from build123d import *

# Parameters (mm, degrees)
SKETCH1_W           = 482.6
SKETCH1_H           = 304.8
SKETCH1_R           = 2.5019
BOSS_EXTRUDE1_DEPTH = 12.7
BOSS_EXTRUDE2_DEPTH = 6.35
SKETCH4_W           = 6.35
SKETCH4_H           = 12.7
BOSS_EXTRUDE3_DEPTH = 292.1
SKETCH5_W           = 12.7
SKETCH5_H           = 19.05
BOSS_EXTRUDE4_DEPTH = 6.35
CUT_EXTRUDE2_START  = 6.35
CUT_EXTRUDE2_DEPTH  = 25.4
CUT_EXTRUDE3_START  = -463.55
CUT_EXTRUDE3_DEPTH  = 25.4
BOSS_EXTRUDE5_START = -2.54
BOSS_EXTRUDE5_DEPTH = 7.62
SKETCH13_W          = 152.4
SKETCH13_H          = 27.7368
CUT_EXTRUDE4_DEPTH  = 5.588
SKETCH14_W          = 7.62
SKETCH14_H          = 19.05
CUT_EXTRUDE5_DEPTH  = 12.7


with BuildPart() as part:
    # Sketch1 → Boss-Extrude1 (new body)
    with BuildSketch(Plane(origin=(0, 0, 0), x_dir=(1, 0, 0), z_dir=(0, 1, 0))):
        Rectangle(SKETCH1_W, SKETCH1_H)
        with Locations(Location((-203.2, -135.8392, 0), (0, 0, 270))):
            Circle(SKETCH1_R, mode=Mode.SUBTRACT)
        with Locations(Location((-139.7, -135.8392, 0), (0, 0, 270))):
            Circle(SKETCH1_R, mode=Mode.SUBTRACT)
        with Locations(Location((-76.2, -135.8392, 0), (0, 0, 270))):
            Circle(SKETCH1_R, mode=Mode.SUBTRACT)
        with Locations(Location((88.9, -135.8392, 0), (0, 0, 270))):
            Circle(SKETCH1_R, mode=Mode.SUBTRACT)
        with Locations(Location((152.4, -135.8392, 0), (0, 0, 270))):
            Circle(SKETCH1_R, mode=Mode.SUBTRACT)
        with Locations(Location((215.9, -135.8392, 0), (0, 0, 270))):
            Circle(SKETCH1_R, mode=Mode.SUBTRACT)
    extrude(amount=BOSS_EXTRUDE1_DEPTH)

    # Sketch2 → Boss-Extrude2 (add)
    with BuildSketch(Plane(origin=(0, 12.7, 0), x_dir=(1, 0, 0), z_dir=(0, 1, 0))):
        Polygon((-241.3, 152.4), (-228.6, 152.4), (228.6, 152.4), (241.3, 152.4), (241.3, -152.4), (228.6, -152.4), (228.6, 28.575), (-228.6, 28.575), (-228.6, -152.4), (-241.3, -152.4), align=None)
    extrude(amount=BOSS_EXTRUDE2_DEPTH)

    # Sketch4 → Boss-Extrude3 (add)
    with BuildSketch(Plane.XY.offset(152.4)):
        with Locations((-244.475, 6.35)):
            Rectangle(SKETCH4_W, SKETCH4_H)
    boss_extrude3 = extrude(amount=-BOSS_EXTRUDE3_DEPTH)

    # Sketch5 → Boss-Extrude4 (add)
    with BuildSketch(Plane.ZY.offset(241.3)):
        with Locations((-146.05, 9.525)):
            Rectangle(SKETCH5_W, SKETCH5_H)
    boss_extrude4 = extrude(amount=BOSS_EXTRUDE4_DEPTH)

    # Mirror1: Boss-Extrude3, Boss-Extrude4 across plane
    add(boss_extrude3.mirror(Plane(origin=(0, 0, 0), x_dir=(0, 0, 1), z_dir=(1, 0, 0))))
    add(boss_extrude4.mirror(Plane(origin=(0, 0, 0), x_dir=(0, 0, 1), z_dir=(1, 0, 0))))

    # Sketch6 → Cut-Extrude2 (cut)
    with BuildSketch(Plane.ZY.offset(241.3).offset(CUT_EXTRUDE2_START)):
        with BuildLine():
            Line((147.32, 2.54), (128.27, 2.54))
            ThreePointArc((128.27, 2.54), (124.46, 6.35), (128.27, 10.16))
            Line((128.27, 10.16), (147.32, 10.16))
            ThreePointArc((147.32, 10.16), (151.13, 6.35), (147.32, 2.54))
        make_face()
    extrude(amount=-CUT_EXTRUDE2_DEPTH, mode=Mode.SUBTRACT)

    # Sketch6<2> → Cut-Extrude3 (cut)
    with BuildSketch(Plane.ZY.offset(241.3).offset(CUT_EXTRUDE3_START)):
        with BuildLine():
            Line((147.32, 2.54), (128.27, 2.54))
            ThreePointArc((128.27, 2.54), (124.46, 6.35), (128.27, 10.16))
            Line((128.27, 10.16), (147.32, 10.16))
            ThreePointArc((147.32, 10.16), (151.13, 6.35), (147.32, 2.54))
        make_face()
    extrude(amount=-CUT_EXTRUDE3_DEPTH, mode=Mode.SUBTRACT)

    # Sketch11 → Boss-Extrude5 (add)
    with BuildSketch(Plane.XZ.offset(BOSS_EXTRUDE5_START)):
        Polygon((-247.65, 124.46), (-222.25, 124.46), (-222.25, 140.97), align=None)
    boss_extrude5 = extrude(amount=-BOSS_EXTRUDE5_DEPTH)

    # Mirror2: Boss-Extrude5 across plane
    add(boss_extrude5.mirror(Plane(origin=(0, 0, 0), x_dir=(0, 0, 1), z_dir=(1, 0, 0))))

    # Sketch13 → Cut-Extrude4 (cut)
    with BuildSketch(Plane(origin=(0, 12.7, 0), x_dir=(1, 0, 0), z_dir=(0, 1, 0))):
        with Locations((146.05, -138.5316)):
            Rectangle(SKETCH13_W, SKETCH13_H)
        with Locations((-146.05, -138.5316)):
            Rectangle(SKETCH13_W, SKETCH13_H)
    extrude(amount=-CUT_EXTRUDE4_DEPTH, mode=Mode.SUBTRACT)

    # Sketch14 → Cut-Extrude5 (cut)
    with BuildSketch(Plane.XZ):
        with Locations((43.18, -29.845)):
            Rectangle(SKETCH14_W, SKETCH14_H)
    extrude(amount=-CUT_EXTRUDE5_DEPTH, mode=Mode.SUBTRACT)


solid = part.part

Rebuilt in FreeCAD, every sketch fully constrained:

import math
import FreeCAD as App
import Part
import Sketcher

V = App.Vector
Q = App.Units.Quantity

doc = App.newDocument("Part")
body = doc.addObject("PartDesign::Body", "Body")

# Sketch on XZ plane
sketch1 = doc.addObject("Sketcher::SketchObject", "Sketch")
body.addObject(sketch1)
sketch1.AttachmentSupport = (doc.XZ_Plane, [""])
sketch1.MapMode = "FlatFace"
sketch1.addGeometry(Part.LineSegment(V(-241.3, -152.4, 0), V(-241.3, 152.4, 0)), False)
sketch1.addGeometry(Part.LineSegment(V(-241.3, 152.4, 0), V(241.3, 152.4, 0)), False)
sketch1.addGeometry(Part.LineSegment(V(241.3, 152.4, 0), V(241.3, -152.4, 0)), False)
sketch1.addGeometry(Part.LineSegment(V(241.3, -152.4, 0), V(-241.3, -152.4, 0)), False)
sketch1.addGeometry(Part.Circle(V(-203.2, 135.8, 0), V(0, 0, 1), 2.5), False)
sketch1.addGeometry(Part.Circle(V(-139.7, 135.8, 0), V(0, 0, 1), 2.5), False)
sketch1.addGeometry(Part.Circle(V(-76.2, 135.8, 0), V(0, 0, 1), 2.5), False)
sketch1.addGeometry(Part.Circle(V(88.9, 135.8, 0), V(0, 0, 1), 2.5), False)
sketch1.addGeometry(Part.Circle(V(152.4, 135.8, 0), V(0, 0, 1), 2.5), False)
sketch1.addGeometry(Part.Circle(V(215.9, 135.8, 0), V(0, 0, 1), 2.5), False)
sketch1.addConstraint(Sketcher.Constraint("Coincident", 0, 2, 1, 1))
sketch1.addConstraint(Sketcher.Constraint("Coincident", 1, 2, 2, 1))
sketch1.addConstraint(Sketcher.Constraint("Coincident", 2, 2, 3, 1))
sketch1.addConstraint(Sketcher.Constraint("Coincident", 3, 2, 0, 1))
sketch1.addConstraint(Sketcher.Constraint("Vertical", 0))
sketch1.addConstraint(Sketcher.Constraint("Horizontal", 1))
sketch1.addConstraint(Sketcher.Constraint("Vertical", 2))
sketch1.addConstraint(Sketcher.Constraint("Horizontal", 3))
sketch1.addConstraint(Sketcher.Constraint("Equal", 4, 5))
sketch1.addConstraint(Sketcher.Constraint("Equal", 5, 6))
sketch1.addConstraint(Sketcher.Constraint("Equal", 6, 7))
sketch1.addConstraint(Sketcher.Constraint("Equal", 7, 8))
sketch1.addConstraint(Sketcher.Constraint("Equal", 8, 9))
sketch1.addConstraint(Sketcher.Constraint("Symmetric", 0, 2, 2, 2, -1, 1))
sketch1.addConstraint(Sketcher.Constraint("Horizontal", 4, 3, 5, 3))
sketch1.addConstraint(Sketcher.Constraint("Horizontal", 5, 3, 6, 3))
sketch1.addConstraint(Sketcher.Constraint("Horizontal", 6, 3, 7, 3))
sketch1.addConstraint(Sketcher.Constraint("Horizontal", 7, 3, 8, 3))
sketch1.addConstraint(Sketcher.Constraint("Horizontal", 8, 3, 9, 3))
sketch1.addConstraint(Sketcher.Constraint("DistanceX", 1, 1, 1, 2, Q("19 in")))
sketch1.addConstraint(Sketcher.Constraint("DistanceY", 0, 1, 0, 2, Q("12 in")))
sketch1.addConstraint(Sketcher.Constraint("Diameter", 4, Q("0.197 in")))
sketch1.addConstraint(Sketcher.Constraint("DistanceX", 4, 3, -1, 1, Q("8 in")))
sketch1.addConstraint(Sketcher.Constraint("DistanceX", 6, 3, -1, 1, Q("3 in")))
sketch1.addConstraint(Sketcher.Constraint("DistanceX", -1, 1, 8, 3, Q("6 in")))
sketch1.addConstraint(Sketcher.Constraint("DistanceX", 5, 3, 7, 3, Q("9 in")))
sketch1.addConstraint(Sketcher.Constraint("DistanceX", 7, 3, 9, 3, Q("5 in")))
sketch1.addConstraint(Sketcher.Constraint("DistanceX", 0, 2, 5, 3, Q("4 in")))
sketch1.addConstraint(Sketcher.Constraint("DistanceY", -1, 1, 4, 3, Q("5.348 in")))
pad1 = doc.addObject("PartDesign::Pad", "Pad")
body.addObject(pad1)
pad1.Profile = sketch1
pad1.Length = Q("0.5 in")
pad1.Reversed = True

# Sketch on XZ plane
sketch2 = doc.addObject("Sketcher::SketchObject", "Sketch001")
body.addObject(sketch2)
sketch2.AttachmentSupport = (doc.XZ_Plane, [""])
sketch2.MapMode = "FlatFace"
sketch2.AttachmentOffset = App.Placement(V(0, 0, -0.5 * 25.4), App.Rotation())
sketch2.addGeometry(Part.LineSegment(V(241, -152, 0), V(-241, -152, 0)), False)
sketch2.addGeometry(Part.LineSegment(V(-241, -152, 0), V(-241, 152, 0)), False)
sketch2.addGeometry(Part.LineSegment(V(-241, 152, 0), V(-229, 152, 0)), False)
sketch2.addGeometry(Part.LineSegment(V(-229, 152, 0), V(-229, -29, 0)), False)
sketch2.addGeometry(Part.LineSegment(V(-229, -29, 0), V(229, -29, 0)), False)
sketch2.addGeometry(Part.LineSegment(V(229, -29, 0), V(229, 152, 0)), False)
sketch2.addGeometry(Part.LineSegment(V(229, 152, 0), V(241, 152, 0)), False)
sketch2.addGeometry(Part.LineSegment(V(241, 152, 0), V(241, -152, 0)), False)
sketch2.addConstraint(Sketcher.Constraint("Coincident", 0, 2, 1, 1))
sketch2.addConstraint(Sketcher.Constraint("Coincident", 1, 2, 2, 1))
sketch2.addConstraint(Sketcher.Constraint("Coincident", 2, 2, 3, 1))
sketch2.addConstraint(Sketcher.Constraint("Coincident", 3, 2, 4, 1))
sketch2.addConstraint(Sketcher.Constraint("Coincident", 4, 2, 5, 1))
sketch2.addConstraint(Sketcher.Constraint("Coincident", 5, 2, 6, 1))
sketch2.addConstraint(Sketcher.Constraint("Coincident", 6, 2, 7, 1))
sketch2.addConstraint(Sketcher.Constraint("Coincident", 7, 2, 0, 1))
sketch2.addConstraint(Sketcher.Constraint("Horizontal", 0))
sketch2.addConstraint(Sketcher.Constraint("Vertical", 1))
sketch2.addConstraint(Sketcher.Constraint("Horizontal", 2))
sketch2.addConstraint(Sketcher.Constraint("Vertical", 3))
sketch2.addConstraint(Sketcher.Constraint("Horizontal", 4))
sketch2.addConstraint(Sketcher.Constraint("Vertical", 5))
sketch2.addConstraint(Sketcher.Constraint("Horizontal", 6))
sketch2.addConstraint(Sketcher.Constraint("Vertical", 7))
sketch2.addConstraint(Sketcher.Constraint("Symmetric", 0, 2, 6, 2, -1, 1))
sketch2.addConstraint(Sketcher.Constraint("Symmetric", 2, 2, 5, 2, -2))
sketch2.addConstraint(Sketcher.Constraint("DistanceX", 0, 2, 0, 1, Q("19 in")))
sketch2.addConstraint(Sketcher.Constraint("DistanceX", 4, 1, 4, 2, Q("18 in")))
sketch2.addConstraint(Sketcher.Constraint("DistanceY", 1, 1, 1, 2, Q("12 in")))
sketch2.addConstraint(Sketcher.Constraint("DistanceY", 3, 2, 3, 1, Q("7.125 in")))
pad2 = doc.addObject("PartDesign::Pad", "Pad001")
body.addObject(pad2)
pad2.Profile = sketch2
pad2.Length = Q("0.25 in")
pad2.Reversed = True

# Sketch on XY plane
sketch3 = doc.addObject("Sketcher::SketchObject", "Sketch002")
body.addObject(sketch3)
sketch3.AttachmentSupport = (doc.XY_Plane, [""])
sketch3.MapMode = "FlatFace"
sketch3.AttachmentOffset = App.Placement(V(0, 0, 6 * 25.4), App.Rotation())
sketch3.addGeometry(Part.LineSegment(V(-248, 13, 0), V(-248, 0, 0)), False)
sketch3.addGeometry(Part.LineSegment(V(-248, 0, 0), V(-241, 0, 0)), False)
sketch3.addGeometry(Part.LineSegment(V(-241, 0, 0), V(-241, 13, 0)), False)
sketch3.addGeometry(Part.LineSegment(V(-241, 13, 0), V(-248, 13, 0)), False)
sketch3.addConstraint(Sketcher.Constraint("Coincident", 0, 2, 1, 1))
sketch3.addConstraint(Sketcher.Constraint("Coincident", 1, 2, 2, 1))
sketch3.addConstraint(Sketcher.Constraint("Coincident", 2, 2, 3, 1))
sketch3.addConstraint(Sketcher.Constraint("Coincident", 3, 2, 0, 1))
sketch3.addConstraint(Sketcher.Constraint("Vertical", 0))
sketch3.addConstraint(Sketcher.Constraint("Horizontal", 1))
sketch3.addConstraint(Sketcher.Constraint("Vertical", 2))
sketch3.addConstraint(Sketcher.Constraint("Horizontal", 3))
sketch3.addConstraint(Sketcher.Constraint("PointOnObject", 0, 2, -1))
sketch3.addConstraint(Sketcher.Constraint("DistanceY", 0, 2, 0, 1, Q("0.5 in")))
sketch3.addConstraint(Sketcher.Constraint("DistanceX", 1, 1, 1, 2, Q("0.25 in")))
sketch3.addConstraint(Sketcher.Constraint("DistanceX", 1, 2, -1, 1, Q("9.5 in")))
pad3 = doc.addObject("PartDesign::Pad", "Pad002")
body.addObject(pad3)
pad3.Profile = sketch3
pad3.Length = Q("11.5 in")
pad3.Reversed = True

# Sketch on YZ plane
sketch4 = doc.addObject("Sketcher::SketchObject", "Sketch003")
body.addObject(sketch4)
sketch4.AttachmentSupport = (doc.YZ_Plane, [""])
sketch4.MapMode = "FlatFace"
sketch4.AttachmentOffset = App.Placement(V(0, 0, -9.5 * 25.4), App.Rotation())
sketch4.addGeometry(Part.LineSegment(V(19, -152, 0), V(0, -152, 0)), False)
sketch4.addGeometry(Part.LineSegment(V(0, -152, 0), V(0, -140, 0)), False)
sketch4.addGeometry(Part.LineSegment(V(0, -140, 0), V(19, -140, 0)), False)
sketch4.addGeometry(Part.LineSegment(V(19, -140, 0), V(19, -152, 0)), False)
sketch4.addConstraint(Sketcher.Constraint("Coincident", 0, 2, 1, 1))
sketch4.addConstraint(Sketcher.Constraint("Coincident", 1, 2, 2, 1))
sketch4.addConstraint(Sketcher.Constraint("Coincident", 2, 2, 3, 1))
sketch4.addConstraint(Sketcher.Constraint("Coincident", 3, 2, 0, 1))
sketch4.addConstraint(Sketcher.Constraint("Horizontal", 0))
sketch4.addConstraint(Sketcher.Constraint("Vertical", 1))
sketch4.addConstraint(Sketcher.Constraint("Horizontal", 2))
sketch4.addConstraint(Sketcher.Constraint("Vertical", 3))
sketch4.addConstraint(Sketcher.Constraint("PointOnObject", 0, 2, -2))
sketch4.addConstraint(Sketcher.Constraint("DistanceY", 1, 1, 1, 2, Q("0.5 in")))
sketch4.addConstraint(Sketcher.Constraint("DistanceY", 0, 2, -1, 1, Q("6 in")))
sketch4.addConstraint(Sketcher.Constraint("DistanceX", 0, 2, 0, 1, Q("0.75 in")))
pad4 = doc.addObject("PartDesign::Pad", "Pad003")
body.addObject(pad4)
pad4.Profile = sketch4
pad4.Length = Q("0.25 in")
pad4.Reversed = True
doc.recompute()

mirrored = doc.addObject("PartDesign::Mirrored", "Mirrored")
body.addObject(mirrored)
mirrored.Originals = [pad3, pad4]
mirrored.MirrorPlane = (doc.YZ_Plane, [""])
body.Tip = mirrored

# Sketch on YZ plane
sketch5 = doc.addObject("Sketcher::SketchObject", "Sketch004")
body.addObject(sketch5)
sketch5.AttachmentSupport = (doc.YZ_Plane, [""])
sketch5.MapMode = "FlatFace"
sketch5.AttachmentOffset = App.Placement(V(0, 0, -9.75 * 25.4), App.Rotation())
sketch5.addGeometry(Part.LineSegment(V(2.5, 128.3, 0), V(2.5, 147.3, 0)), False)
sketch5.addGeometry(Part.ArcOfCircle(Part.Circle(V(6.3, 147.3, 0), V(0, 0, 1), 3.8), math.radians(0), math.radians(180)), False)
sketch5.addGeometry(Part.LineSegment(V(10.2, 147.3, 0), V(10.2, 128.3, 0)), False)
sketch5.addGeometry(Part.ArcOfCircle(Part.Circle(V(6.3, 128.3, 0), V(0, 0, 1), 3.8), math.radians(180), math.radians(360)), False)
sketch5.addConstraint(Sketcher.Constraint("Tangent", 0, 2, 1, 2))
sketch5.addConstraint(Sketcher.Constraint("Tangent", 1, 1, 2, 1))
sketch5.addConstraint(Sketcher.Constraint("Tangent", 2, 2, 3, 2))
sketch5.addConstraint(Sketcher.Constraint("Tangent", 3, 1, 0, 1))
sketch5.addConstraint(Sketcher.Constraint("Vertical", 0))
sketch5.addConstraint(Sketcher.Constraint("Vertical", 2))
sketch5.addConstraint(Sketcher.Constraint("Radius", 1, Q("0.15 in")))
sketch5.addConstraint(Sketcher.Constraint("DistanceY", 0, 1, 0, 2, Q("0.75 in")))
sketch5.addConstraint(Sketcher.Constraint("DistanceY", -1, 1, 1, 3, Q("5.8 in")))
sketch5.addConstraint(Sketcher.Constraint("DistanceX", -1, 1, 0, 2, Q("0.1 in")))
pocket1 = doc.addObject("PartDesign::Pocket", "Pocket")
body.addObject(pocket1)
pocket1.Profile = sketch5
pocket1.Length = Q("1 in")
pocket1.Reversed = True

# Sketch on YZ plane
sketch6 = doc.addObject("Sketcher::SketchObject", "Sketch005")
body.addObject(sketch6)
sketch6.AttachmentSupport = (doc.YZ_Plane, [""])
sketch6.MapMode = "FlatFace"
sketch6.AttachmentOffset = App.Placement(V(0, 0, 8.75 * 25.4), App.Rotation())
sketch6.addGeometry(Part.LineSegment(V(2.5, 128.3, 0), V(2.5, 147.3, 0)), False)
sketch6.addGeometry(Part.ArcOfCircle(Part.Circle(V(6.3, 147.3, 0), V(0, 0, 1), 3.8), math.radians(0), math.radians(180)), False)
sketch6.addGeometry(Part.LineSegment(V(10.2, 147.3, 0), V(10.2, 128.3, 0)), False)
sketch6.addGeometry(Part.ArcOfCircle(Part.Circle(V(6.3, 128.3, 0), V(0, 0, 1), 3.8), math.radians(180), math.radians(360)), False)
sketch6.addConstraint(Sketcher.Constraint("Tangent", 0, 2, 1, 2))
sketch6.addConstraint(Sketcher.Constraint("Tangent", 1, 1, 2, 1))
sketch6.addConstraint(Sketcher.Constraint("Tangent", 2, 2, 3, 2))
sketch6.addConstraint(Sketcher.Constraint("Tangent", 3, 1, 0, 1))
sketch6.addConstraint(Sketcher.Constraint("Vertical", 0))
sketch6.addConstraint(Sketcher.Constraint("Vertical", 2))
sketch6.addConstraint(Sketcher.Constraint("Radius", 1, Q("0.15 in")))
sketch6.addConstraint(Sketcher.Constraint("DistanceY", 0, 1, 0, 2, Q("0.75 in")))
sketch6.addConstraint(Sketcher.Constraint("DistanceY", -1, 1, 1, 3, Q("5.8 in")))
sketch6.addConstraint(Sketcher.Constraint("DistanceX", -1, 1, 0, 2, Q("0.1 in")))
pocket2 = doc.addObject("PartDesign::Pocket", "Pocket001")
body.addObject(pocket2)
pocket2.Profile = sketch6
pocket2.Length = Q("1 in")
pocket2.Reversed = True

# Sketch on XZ plane
sketch7 = doc.addObject("Sketcher::SketchObject", "Sketch006")
body.addObject(sketch7)
sketch7.AttachmentSupport = (doc.XZ_Plane, [""])
sketch7.MapMode = "FlatFace"
sketch7.AttachmentOffset = App.Placement(V(0, 0, -0.1 * 25.4), App.Rotation())
sketch7.addGeometry(Part.LineSegment(V(-248, 124, 0), V(-222, 124, 0)), False)
sketch7.addGeometry(Part.LineSegment(V(-222, 124, 0), V(-222, 141, 0)), False)
sketch7.addGeometry(Part.LineSegment(V(-222, 141, 0), V(-248, 124, 0)), False)
sketch7.addConstraint(Sketcher.Constraint("Coincident", 0, 2, 1, 1))
sketch7.addConstraint(Sketcher.Constraint("Coincident", 1, 2, 2, 1))
sketch7.addConstraint(Sketcher.Constraint("Coincident", 2, 2, 0, 1))
sketch7.addConstraint(Sketcher.Constraint("Horizontal", 0))
sketch7.addConstraint(Sketcher.Constraint("Vertical", 1))
sketch7.addConstraint(Sketcher.Constraint("DistanceX", 0, 1, 0, 2, Q("1 in")))
sketch7.addConstraint(Sketcher.Constraint("DistanceY", 1, 1, 1, 2, Q("0.65 in")))
sketch7.addConstraint(Sketcher.Constraint("DistanceY", -1, 1, 0, 2, Q("4.9 in")))
sketch7.addConstraint(Sketcher.Constraint("DistanceX", 0, 2, -1, 1, Q("8.75 in")))
pad5 = doc.addObject("PartDesign::Pad", "Pad004")
body.addObject(pad5)
pad5.Profile = sketch7
pad5.Length = Q("0.3 in")
pad5.Reversed = True
doc.recompute()

mirrored2 = doc.addObject("PartDesign::Mirrored", "Mirrored001")
body.addObject(mirrored2)
mirrored2.Originals = [pad5]
mirrored2.MirrorPlane = (doc.YZ_Plane, [""])
body.Tip = mirrored2

# Sketch on XZ plane
sketch8 = doc.addObject("Sketcher::SketchObject", "Sketch007")
body.addObject(sketch8)
sketch8.AttachmentSupport = (doc.XZ_Plane, [""])
sketch8.MapMode = "FlatFace"
sketch8.AttachmentOffset = App.Placement(V(0, 0, -0.5 * 25.4), App.Rotation())
sketch8.addGeometry(Part.LineSegment(V(70, 125, 0), V(70, 152, 0)), False)
sketch8.addGeometry(Part.LineSegment(V(70, 152, 0), V(222, 152, 0)), False)
sketch8.addGeometry(Part.LineSegment(V(222, 152, 0), V(222, 125, 0)), False)
sketch8.addGeometry(Part.LineSegment(V(222, 125, 0), V(70, 125, 0)), False)
sketch8.addGeometry(Part.LineSegment(V(-222, 125, 0), V(-222, 152, 0)), False)
sketch8.addGeometry(Part.LineSegment(V(-222, 152, 0), V(-70, 152, 0)), False)
sketch8.addGeometry(Part.LineSegment(V(-70, 152, 0), V(-70, 125, 0)), False)
sketch8.addGeometry(Part.LineSegment(V(-70, 125, 0), V(-222, 125, 0)), False)
sketch8.addConstraint(Sketcher.Constraint("Coincident", 0, 2, 1, 1))
sketch8.addConstraint(Sketcher.Constraint("Coincident", 1, 2, 2, 1))
sketch8.addConstraint(Sketcher.Constraint("Coincident", 2, 2, 3, 1))
sketch8.addConstraint(Sketcher.Constraint("Coincident", 3, 2, 0, 1))
sketch8.addConstraint(Sketcher.Constraint("Coincident", 4, 2, 5, 1))
sketch8.addConstraint(Sketcher.Constraint("Coincident", 5, 2, 6, 1))
sketch8.addConstraint(Sketcher.Constraint("Coincident", 6, 2, 7, 1))
sketch8.addConstraint(Sketcher.Constraint("Coincident", 7, 2, 4, 1))
sketch8.addConstraint(Sketcher.Constraint("Vertical", 0))
sketch8.addConstraint(Sketcher.Constraint("Horizontal", 1))
sketch8.addConstraint(Sketcher.Constraint("Vertical", 2))
sketch8.addConstraint(Sketcher.Constraint("Horizontal", 3))
sketch8.addConstraint(Sketcher.Constraint("Vertical", 4))
sketch8.addConstraint(Sketcher.Constraint("Horizontal", 5))
sketch8.addConstraint(Sketcher.Constraint("Vertical", 6))
sketch8.addConstraint(Sketcher.Constraint("Horizontal", 7))
sketch8.addConstraint(Sketcher.Constraint("Symmetric", 1, 2, 4, 2, -2))
sketch8.addConstraint(Sketcher.Constraint("Symmetric", 3, 2, 6, 2, -2))
sketch8.addConstraint(Sketcher.Constraint("DistanceX", 1, 1, 1, 2, Q("6 in")))
sketch8.addConstraint(Sketcher.Constraint("DistanceY", -1, 1, 0, 2, Q("6 in")))
sketch8.addConstraint(Sketcher.Constraint("DistanceX", 4, 2, 0, 2, Q("11.5 in")))
sketch8.addConstraint(Sketcher.Constraint("DistanceY", 0, 1, 0, 2, Q("1.092 in")))
pocket3 = doc.addObject("PartDesign::Pocket", "Pocket002")
body.addObject(pocket3)
pocket3.Profile = sketch8
pocket3.Length = Q("0.22 in")
pocket3.Reversed = True

# Sketch on XZ plane
sketch9 = doc.addObject("Sketcher::SketchObject", "Sketch008")
body.addObject(sketch9)
sketch9.AttachmentSupport = (doc.XZ_Plane, [""])
sketch9.MapMode = "FlatFace"
sketch9.addGeometry(Part.LineSegment(V(39, -20, 0), V(39, -39, 0)), False)
sketch9.addGeometry(Part.LineSegment(V(39, -39, 0), V(47, -39, 0)), False)
sketch9.addGeometry(Part.LineSegment(V(47, -39, 0), V(47, -20, 0)), False)
sketch9.addGeometry(Part.LineSegment(V(47, -20, 0), V(39, -20, 0)), False)
sketch9.addConstraint(Sketcher.Constraint("Coincident", 0, 2, 1, 1))
sketch9.addConstraint(Sketcher.Constraint("Coincident", 1, 2, 2, 1))
sketch9.addConstraint(Sketcher.Constraint("Coincident", 2, 2, 3, 1))
sketch9.addConstraint(Sketcher.Constraint("Coincident", 3, 2, 0, 1))
sketch9.addConstraint(Sketcher.Constraint("Vertical", 0))
sketch9.addConstraint(Sketcher.Constraint("Horizontal", 1))
sketch9.addConstraint(Sketcher.Constraint("Vertical", 2))
sketch9.addConstraint(Sketcher.Constraint("Horizontal", 3))
sketch9.addConstraint(Sketcher.Constraint("DistanceX", 1, 1, 1, 2, Q("0.3 in")))
sketch9.addConstraint(Sketcher.Constraint("DistanceY", 0, 2, 0, 1, Q("0.75 in")))
sketch9.addConstraint(Sketcher.Constraint("DistanceY", 2, 2, -1, 1, Q("0.8 in")))
sketch9.addConstraint(Sketcher.Constraint("DistanceX", -1, 1, 0, 2, Q("1.55 in")))
pocket4 = doc.addObject("PartDesign::Pocket", "Pocket003")
body.addObject(pocket4)
pocket4.Profile = sketch9
pocket4.Length = Q("0.5 in")

doc.recompute()
